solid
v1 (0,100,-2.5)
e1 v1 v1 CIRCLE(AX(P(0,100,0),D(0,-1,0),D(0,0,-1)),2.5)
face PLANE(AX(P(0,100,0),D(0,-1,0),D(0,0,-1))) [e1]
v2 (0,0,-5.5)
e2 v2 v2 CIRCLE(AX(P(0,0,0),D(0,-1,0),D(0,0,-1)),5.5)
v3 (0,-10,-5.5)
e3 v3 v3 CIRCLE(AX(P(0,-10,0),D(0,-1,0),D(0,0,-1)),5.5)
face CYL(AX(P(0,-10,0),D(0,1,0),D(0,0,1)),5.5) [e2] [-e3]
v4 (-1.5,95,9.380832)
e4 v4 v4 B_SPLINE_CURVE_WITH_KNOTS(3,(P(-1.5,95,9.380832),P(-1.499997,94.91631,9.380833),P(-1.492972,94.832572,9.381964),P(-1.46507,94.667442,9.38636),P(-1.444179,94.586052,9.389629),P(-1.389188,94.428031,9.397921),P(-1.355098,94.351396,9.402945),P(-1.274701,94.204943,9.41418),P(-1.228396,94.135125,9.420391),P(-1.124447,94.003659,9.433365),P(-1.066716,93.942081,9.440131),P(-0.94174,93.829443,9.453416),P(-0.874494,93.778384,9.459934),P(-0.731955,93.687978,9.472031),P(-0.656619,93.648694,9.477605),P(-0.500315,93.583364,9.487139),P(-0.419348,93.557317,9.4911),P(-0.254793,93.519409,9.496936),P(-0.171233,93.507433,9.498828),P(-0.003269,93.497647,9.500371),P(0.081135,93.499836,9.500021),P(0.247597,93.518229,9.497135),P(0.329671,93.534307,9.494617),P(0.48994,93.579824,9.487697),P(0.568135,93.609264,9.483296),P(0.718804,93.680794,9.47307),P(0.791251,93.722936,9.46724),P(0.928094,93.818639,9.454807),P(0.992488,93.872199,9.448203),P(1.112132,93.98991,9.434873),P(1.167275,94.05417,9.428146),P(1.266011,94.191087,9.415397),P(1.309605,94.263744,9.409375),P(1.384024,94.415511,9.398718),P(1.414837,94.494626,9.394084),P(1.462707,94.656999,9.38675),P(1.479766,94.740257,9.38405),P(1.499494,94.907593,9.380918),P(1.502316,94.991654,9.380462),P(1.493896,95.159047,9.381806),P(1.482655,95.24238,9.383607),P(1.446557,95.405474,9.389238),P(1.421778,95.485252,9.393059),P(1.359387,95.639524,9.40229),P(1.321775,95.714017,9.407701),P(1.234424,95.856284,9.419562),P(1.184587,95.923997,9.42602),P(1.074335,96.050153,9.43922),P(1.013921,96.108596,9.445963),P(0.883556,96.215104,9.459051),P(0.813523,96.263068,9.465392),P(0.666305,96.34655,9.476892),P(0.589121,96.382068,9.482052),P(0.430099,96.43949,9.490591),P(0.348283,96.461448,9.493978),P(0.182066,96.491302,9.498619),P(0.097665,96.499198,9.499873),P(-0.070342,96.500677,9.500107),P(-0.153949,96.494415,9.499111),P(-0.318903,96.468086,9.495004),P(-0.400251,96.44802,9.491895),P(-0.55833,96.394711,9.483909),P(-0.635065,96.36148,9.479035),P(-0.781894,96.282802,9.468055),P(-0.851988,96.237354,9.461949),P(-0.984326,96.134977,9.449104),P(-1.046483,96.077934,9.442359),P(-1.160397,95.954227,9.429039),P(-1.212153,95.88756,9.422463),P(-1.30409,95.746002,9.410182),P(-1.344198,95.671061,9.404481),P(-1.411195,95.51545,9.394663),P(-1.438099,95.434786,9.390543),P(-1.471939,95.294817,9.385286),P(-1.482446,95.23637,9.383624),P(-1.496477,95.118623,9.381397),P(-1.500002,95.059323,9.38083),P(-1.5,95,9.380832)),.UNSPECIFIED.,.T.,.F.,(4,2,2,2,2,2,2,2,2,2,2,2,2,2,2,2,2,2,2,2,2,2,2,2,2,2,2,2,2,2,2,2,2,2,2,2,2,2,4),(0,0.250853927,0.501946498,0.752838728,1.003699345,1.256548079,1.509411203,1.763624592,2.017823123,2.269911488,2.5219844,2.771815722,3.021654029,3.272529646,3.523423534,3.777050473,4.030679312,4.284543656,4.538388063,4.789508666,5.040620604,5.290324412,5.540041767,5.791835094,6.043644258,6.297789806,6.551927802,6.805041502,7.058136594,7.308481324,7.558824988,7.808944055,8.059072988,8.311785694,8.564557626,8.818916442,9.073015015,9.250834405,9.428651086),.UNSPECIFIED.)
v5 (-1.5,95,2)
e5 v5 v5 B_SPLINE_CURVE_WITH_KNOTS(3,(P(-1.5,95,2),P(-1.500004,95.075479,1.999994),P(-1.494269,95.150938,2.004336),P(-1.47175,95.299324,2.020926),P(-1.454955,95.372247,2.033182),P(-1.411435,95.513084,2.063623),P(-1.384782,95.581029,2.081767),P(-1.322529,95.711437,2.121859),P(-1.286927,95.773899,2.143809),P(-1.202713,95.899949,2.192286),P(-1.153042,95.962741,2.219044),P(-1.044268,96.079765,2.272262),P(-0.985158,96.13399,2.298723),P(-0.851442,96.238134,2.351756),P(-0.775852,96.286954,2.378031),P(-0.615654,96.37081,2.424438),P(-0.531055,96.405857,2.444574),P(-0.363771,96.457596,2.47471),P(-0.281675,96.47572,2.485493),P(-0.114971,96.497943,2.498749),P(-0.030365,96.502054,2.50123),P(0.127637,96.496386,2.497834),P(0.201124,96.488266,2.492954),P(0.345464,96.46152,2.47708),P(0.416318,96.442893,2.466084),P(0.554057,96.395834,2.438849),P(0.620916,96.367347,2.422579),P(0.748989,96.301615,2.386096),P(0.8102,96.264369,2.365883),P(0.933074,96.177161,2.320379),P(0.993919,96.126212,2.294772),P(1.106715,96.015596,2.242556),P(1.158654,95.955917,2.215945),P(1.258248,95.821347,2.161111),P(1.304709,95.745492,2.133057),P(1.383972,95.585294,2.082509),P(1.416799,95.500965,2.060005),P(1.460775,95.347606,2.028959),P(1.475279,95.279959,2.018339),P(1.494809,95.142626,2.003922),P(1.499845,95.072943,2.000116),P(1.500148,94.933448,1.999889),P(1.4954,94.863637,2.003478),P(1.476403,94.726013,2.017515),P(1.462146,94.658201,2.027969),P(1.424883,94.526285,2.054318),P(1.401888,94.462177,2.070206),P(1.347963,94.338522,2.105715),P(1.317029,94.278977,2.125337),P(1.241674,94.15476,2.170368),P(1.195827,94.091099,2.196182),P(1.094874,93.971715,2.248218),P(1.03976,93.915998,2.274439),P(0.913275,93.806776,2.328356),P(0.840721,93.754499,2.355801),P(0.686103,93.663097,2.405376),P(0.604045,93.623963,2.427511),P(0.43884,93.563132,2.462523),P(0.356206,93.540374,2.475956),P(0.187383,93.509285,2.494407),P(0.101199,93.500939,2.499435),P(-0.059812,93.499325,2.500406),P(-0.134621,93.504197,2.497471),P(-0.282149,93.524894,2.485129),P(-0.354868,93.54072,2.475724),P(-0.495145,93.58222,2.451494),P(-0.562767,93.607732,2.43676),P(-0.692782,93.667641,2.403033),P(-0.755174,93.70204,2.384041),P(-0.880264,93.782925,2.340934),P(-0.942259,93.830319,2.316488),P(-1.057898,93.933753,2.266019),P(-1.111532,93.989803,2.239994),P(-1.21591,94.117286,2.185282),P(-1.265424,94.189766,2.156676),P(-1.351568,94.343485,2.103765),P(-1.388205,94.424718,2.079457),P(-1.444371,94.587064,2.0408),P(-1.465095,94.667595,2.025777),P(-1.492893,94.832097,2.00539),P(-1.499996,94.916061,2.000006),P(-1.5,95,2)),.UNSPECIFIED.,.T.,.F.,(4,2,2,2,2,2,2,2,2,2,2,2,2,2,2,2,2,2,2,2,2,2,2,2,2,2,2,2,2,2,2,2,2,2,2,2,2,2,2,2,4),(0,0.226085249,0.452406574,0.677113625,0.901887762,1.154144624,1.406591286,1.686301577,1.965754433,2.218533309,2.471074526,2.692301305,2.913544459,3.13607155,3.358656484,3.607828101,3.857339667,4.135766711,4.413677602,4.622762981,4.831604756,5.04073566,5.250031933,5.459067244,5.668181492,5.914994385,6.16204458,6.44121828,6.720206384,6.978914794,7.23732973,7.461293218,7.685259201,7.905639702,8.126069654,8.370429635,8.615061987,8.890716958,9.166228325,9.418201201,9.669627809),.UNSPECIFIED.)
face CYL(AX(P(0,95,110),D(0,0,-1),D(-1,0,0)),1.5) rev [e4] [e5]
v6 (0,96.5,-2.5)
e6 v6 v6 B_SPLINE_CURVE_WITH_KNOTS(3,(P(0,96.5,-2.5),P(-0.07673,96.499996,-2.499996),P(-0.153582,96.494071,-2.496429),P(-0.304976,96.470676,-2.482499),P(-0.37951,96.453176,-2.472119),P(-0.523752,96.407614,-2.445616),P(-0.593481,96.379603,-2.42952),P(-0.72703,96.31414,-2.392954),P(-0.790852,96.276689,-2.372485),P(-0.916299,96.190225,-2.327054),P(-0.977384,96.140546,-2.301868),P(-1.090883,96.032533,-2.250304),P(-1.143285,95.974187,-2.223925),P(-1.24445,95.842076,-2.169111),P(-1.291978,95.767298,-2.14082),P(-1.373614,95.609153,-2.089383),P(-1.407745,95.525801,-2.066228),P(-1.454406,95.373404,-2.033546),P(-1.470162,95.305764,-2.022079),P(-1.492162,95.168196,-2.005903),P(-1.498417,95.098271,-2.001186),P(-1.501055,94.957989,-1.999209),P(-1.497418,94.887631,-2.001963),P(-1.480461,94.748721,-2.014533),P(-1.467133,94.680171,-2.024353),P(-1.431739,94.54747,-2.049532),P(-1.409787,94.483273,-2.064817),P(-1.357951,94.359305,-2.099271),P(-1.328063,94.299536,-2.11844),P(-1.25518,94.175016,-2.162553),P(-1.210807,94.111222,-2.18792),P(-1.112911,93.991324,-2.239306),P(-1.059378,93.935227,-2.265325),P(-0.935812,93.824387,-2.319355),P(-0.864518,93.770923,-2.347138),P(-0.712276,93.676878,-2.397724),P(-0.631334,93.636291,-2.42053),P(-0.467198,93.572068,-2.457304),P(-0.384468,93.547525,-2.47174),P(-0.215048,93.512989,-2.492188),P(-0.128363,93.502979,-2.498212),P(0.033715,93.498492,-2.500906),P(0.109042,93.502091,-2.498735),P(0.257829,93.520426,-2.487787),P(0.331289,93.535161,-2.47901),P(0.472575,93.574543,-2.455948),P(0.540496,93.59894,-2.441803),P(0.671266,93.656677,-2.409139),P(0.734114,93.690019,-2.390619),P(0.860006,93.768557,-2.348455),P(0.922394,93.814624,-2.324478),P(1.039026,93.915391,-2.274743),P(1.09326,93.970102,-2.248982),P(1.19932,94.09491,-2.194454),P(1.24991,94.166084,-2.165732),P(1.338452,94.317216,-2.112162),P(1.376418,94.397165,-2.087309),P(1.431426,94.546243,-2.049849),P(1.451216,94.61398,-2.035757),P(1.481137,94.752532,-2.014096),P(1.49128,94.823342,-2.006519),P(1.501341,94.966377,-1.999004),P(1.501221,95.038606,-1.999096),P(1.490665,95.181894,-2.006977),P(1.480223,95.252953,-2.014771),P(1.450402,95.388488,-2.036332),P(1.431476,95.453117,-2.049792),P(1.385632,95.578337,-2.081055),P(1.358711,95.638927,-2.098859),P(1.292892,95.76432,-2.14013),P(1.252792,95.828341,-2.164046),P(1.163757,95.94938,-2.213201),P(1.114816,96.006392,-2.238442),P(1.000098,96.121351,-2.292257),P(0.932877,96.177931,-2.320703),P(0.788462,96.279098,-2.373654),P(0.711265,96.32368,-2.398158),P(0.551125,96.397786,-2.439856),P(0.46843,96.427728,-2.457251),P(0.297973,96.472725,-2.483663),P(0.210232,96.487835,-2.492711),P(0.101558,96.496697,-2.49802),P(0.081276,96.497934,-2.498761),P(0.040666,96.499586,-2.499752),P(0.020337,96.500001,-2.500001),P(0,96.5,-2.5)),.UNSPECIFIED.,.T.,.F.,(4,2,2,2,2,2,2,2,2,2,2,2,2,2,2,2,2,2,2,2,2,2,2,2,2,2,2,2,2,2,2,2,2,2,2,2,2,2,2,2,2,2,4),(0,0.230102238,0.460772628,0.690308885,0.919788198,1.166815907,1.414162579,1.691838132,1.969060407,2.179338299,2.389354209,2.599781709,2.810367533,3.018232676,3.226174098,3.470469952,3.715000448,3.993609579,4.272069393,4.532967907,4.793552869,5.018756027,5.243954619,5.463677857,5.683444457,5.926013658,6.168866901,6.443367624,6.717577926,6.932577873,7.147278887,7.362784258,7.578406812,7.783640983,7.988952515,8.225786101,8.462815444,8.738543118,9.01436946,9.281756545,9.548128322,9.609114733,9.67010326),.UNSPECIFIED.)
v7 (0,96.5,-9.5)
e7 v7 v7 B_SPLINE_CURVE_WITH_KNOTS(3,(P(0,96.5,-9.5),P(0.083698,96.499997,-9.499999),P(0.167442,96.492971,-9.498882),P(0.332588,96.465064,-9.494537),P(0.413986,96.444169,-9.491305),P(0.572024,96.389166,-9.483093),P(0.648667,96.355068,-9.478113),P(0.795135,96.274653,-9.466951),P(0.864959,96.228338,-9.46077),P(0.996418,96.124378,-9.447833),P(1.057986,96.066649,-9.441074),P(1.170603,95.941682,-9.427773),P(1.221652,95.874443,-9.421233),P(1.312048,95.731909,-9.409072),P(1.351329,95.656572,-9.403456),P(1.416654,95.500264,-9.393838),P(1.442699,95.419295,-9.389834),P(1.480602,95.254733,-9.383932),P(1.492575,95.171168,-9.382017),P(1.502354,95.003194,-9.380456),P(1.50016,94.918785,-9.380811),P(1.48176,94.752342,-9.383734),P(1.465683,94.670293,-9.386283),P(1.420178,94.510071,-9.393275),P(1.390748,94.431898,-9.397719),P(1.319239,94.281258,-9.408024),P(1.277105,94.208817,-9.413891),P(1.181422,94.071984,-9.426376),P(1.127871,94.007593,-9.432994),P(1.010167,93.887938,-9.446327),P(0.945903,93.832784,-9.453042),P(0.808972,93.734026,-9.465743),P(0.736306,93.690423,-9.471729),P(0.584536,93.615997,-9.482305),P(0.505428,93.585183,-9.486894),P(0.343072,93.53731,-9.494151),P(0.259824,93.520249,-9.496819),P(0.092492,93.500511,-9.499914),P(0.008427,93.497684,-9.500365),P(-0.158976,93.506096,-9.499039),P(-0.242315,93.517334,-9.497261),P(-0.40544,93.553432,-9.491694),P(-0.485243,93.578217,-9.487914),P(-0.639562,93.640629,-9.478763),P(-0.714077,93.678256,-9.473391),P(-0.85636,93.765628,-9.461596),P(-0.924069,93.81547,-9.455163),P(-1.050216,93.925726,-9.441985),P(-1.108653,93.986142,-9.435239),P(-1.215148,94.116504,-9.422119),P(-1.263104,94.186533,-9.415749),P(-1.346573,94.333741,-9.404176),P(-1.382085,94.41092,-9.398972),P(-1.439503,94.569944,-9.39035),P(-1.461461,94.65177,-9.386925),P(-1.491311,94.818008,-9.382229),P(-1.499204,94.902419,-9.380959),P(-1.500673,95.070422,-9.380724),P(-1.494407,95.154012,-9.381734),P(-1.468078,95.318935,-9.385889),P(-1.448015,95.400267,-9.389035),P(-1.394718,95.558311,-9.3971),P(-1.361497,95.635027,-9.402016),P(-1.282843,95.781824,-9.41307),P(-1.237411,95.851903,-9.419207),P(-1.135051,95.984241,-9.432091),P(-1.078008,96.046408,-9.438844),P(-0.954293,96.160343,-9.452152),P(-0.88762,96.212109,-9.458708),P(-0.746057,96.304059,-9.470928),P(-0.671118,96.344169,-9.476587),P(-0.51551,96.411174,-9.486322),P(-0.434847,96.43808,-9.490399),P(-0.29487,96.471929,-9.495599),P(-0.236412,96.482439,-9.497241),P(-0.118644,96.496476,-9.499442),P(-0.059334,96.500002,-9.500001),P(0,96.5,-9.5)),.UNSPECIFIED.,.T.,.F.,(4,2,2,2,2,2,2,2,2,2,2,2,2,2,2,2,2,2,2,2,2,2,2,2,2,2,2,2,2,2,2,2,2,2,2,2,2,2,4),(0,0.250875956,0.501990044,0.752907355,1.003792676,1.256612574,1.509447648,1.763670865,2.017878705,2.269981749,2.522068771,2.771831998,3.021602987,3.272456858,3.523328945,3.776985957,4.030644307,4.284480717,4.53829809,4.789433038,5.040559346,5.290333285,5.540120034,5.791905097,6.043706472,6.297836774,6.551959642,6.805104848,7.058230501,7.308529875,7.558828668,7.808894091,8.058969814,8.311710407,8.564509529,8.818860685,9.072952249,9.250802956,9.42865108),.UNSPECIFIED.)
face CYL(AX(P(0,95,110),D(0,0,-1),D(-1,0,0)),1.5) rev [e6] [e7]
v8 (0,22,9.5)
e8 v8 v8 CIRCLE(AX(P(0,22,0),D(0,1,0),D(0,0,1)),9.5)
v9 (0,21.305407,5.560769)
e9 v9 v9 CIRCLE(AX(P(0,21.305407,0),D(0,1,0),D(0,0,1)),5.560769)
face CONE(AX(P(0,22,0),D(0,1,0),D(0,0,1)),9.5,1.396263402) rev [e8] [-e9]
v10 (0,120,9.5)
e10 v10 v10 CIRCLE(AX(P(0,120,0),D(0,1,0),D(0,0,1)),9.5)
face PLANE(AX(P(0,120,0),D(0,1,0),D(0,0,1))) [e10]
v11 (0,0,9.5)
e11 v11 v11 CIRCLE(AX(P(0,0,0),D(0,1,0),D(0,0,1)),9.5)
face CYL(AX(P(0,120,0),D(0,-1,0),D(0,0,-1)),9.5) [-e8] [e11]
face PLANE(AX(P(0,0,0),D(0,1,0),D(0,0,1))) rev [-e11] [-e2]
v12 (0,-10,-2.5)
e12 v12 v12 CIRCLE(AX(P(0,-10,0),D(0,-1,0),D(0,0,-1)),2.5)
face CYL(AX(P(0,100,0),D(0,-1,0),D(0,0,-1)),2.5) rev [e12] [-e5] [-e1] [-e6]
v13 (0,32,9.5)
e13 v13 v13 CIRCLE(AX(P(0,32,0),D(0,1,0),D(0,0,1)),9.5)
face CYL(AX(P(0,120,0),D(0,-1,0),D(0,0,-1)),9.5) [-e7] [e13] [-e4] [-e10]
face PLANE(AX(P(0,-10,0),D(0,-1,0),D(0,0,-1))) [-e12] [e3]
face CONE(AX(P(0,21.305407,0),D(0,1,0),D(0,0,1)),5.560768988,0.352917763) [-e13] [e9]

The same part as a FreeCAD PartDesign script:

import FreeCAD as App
import Part
import Sketcher
Q = App.Units.Quantity


def add_polygon(sketch, points):
    """Adds a closed chain of lines whose ends are joined by coincident constraints."""
    first, n = sketch.GeometryCount, len(points)
    for a, b in zip(points, points[1:] + points[:1]):
        sketch.addGeometry(Part.LineSegment(App.Vector(*a, 0), App.Vector(*b, 0)), False)
    for i in range(n):
        sketch.addConstraint(Sketcher.Constraint("Coincident", first + i, 2, first + (i + 1) % n, 1))

doc = App.newDocument("Part")
body = doc.addObject("PartDesign::Body", "Body")

sketch1 = body.newObject("Sketcher::SketchObject", "Sketch")
sketch1.AttachmentSupport = (doc.getObject("XZ_Plane"), [""])
sketch1.MapMode = "FlatFace"
sketch1.addGeometry(Part.Circle(App.Vector(0, 0, 0), App.Vector(0, 0, 1), 9.5), False)
sketch1.addConstraint(Sketcher.Constraint("Coincident", 0, 3, -1, 1))
sketch1.addConstraint(Sketcher.Constraint("Diameter", 0, 19.0))
pad1 = body.newObject("PartDesign::Pad", "Pad")
pad1.Profile = sketch1
pad1.Length = 120
pad1.Reversed = True

sketch2 = body.newObject("Sketcher::SketchObject", "Sketch001")
sketch2.AttachmentSupport = (doc.getObject("XY_Plane"), [""])
sketch2.MapMode = "FlatFace"
add_polygon(sketch2, [(-9.5, 32), (-9.5, 22), (-5.560769, 21.305407)])
sketch2.addConstraint(Sketcher.Constraint("Vertical", 0))
sketch2.addConstraint(Sketcher.Constraint("DistanceY", 0, 2, 0, 1, 10.0))
sketch2.addConstraint(Sketcher.Constraint("Angle", 1, Q("-10 deg")))
sketch2.addConstraint(Sketcher.Constraint("Distance", 1, 4.0))
sketch2.addConstraint(Sketcher.Constraint("DistanceY", -1, 1, 0, 2, 22.0))
sketch2.addConstraint(Sketcher.Constraint("DistanceX", 0, 2, -1, 1, 9.5))
groove = body.newObject("PartDesign::Groove", "Groove")
groove.Profile = sketch2
groove.ReferenceAxis = (sketch2, ["V_Axis"])
groove.Angle = 360

sketch3 = body.newObject("Sketcher::SketchObject", "Sketch002")
sketch3.AttachmentSupport = (doc.getObject("XZ_Plane"), [""])
sketch3.MapMode = "FlatFace"
sketch3.addGeometry(Part.Circle(App.Vector(0, 0, 0), App.Vector(0, 0, 1), 5.5), False)
sketch3.addConstraint(Sketcher.Constraint("Coincident", 0, 3, -1, 1))
sketch3.addConstraint(Sketcher.Constraint("Diameter", 0, 11.0))
pad2 = body.newObject("PartDesign::Pad", "Pad001")
pad2.Profile = sketch3
pad2.Length = 10

sketch4 = body.newObject("Sketcher::SketchObject", "Sketch003")
sketch4.AttachmentSupport = (doc.getObject("XZ_Plane"), [""])
sketch4.MapMode = "FlatFace"
sketch4.AttachmentOffset = App.Placement(App.Vector(0, 0, 10), App.Rotation())
sketch4.addGeometry(Part.Circle(App.Vector(0, 0, 0), App.Vector(0, 0, 1), 2.5), False)
sketch4.addConstraint(Sketcher.Constraint("Coincident", 0, 3, -1, 1))
sketch4.addConstraint(Sketcher.Constraint("Diameter", 0, 5.0))
pocket1 = body.newObject("PartDesign::Pocket", "Pocket")
pocket1.Profile = sketch4
pocket1.Length = 110

sketch5 = body.newObject("Sketcher::SketchObject", "Sketch004")
sketch5.AttachmentSupport = (doc.getObject("XY_Plane"), [""])
sketch5.MapMode = "FlatFace"
sketch5.addGeometry(Part.Circle(App.Vector(0, 95, 0), App.Vector(0, 0, 1), 1.5), False)
sketch5.addConstraint(Sketcher.Constraint("PointOnObject", 0, 3, -2))
sketch5.addConstraint(Sketcher.Constraint("Diameter", 0, 3.0))
sketch5.addConstraint(Sketcher.Constraint("DistanceY", -1, 1, 0, 3, 95.0))
pocket2 = body.newObject("PartDesign::Pocket", "Pocket001")
pocket2.Profile = sketch5
pocket2.Type = "ThroughAll"
pocket2.Midplane = True

doc.recompute()
